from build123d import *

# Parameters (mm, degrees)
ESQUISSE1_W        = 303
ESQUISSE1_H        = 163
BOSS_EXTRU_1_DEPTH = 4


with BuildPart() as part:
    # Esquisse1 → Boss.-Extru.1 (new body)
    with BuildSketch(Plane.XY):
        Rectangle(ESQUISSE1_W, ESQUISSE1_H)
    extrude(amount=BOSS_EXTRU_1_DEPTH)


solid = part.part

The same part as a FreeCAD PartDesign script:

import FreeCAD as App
import Part
import Sketcher
Q = App.Units.Quantity

doc = App.newDocument("Part")
body = doc.addObject("PartDesign::Body", "Body")

sketch1 = body.newObject("Sketcher::SketchObject", "Sketch")
sketch1.AttachmentSupport = (doc.getObject("XY_Plane"), [""])
sketch1.MapMode = "FlatFace"
sketch1.addGeometry([
    Part.LineSegment(App.Vector(-152, 82, 0), App.Vector(-152, -82, 0)),
    Part.LineSegment(App.Vector(-152, -82, 0), App.Vector(152, -82, 0)),
    Part.LineSegment(App.Vector(152, -82, 0), App.Vector(152, 82, 0)),
    Part.LineSegment(App.Vector(152, 82, 0), App.Vector(-152, 82, 0)),
], False)
sketch1.addConstraint([
    Sketcher.Constraint("Coincident", 0, 2, 1, 1),
    Sketcher.Constraint("Coincident", 1, 2, 2, 1),
    Sketcher.Constraint("Coincident", 2, 2, 3, 1),
    Sketcher.Constraint("Coincident", 3, 2, 0, 1),
    Sketcher.Constraint("Vertical", 0),
    Sketcher.Constraint("Horizontal", 1),
    Sketcher.Constraint("Vertical", 2),
    Sketcher.Constraint("Horizontal", 3),
    Sketcher.Constraint("Symmetric", 0, 2, 2, 2, -1, 1),
    Sketcher.Constraint("DistanceX", 1, 1, 1, 2, Q("303 mm")),
    Sketcher.Constraint("DistanceY", 0, 2, 0, 1, Q("163 mm")),
])
pad1 = body.newObject("PartDesign::Pad", "Pad")
pad1.Profile = sketch1
pad1.Length = 4

doc.recompute()
